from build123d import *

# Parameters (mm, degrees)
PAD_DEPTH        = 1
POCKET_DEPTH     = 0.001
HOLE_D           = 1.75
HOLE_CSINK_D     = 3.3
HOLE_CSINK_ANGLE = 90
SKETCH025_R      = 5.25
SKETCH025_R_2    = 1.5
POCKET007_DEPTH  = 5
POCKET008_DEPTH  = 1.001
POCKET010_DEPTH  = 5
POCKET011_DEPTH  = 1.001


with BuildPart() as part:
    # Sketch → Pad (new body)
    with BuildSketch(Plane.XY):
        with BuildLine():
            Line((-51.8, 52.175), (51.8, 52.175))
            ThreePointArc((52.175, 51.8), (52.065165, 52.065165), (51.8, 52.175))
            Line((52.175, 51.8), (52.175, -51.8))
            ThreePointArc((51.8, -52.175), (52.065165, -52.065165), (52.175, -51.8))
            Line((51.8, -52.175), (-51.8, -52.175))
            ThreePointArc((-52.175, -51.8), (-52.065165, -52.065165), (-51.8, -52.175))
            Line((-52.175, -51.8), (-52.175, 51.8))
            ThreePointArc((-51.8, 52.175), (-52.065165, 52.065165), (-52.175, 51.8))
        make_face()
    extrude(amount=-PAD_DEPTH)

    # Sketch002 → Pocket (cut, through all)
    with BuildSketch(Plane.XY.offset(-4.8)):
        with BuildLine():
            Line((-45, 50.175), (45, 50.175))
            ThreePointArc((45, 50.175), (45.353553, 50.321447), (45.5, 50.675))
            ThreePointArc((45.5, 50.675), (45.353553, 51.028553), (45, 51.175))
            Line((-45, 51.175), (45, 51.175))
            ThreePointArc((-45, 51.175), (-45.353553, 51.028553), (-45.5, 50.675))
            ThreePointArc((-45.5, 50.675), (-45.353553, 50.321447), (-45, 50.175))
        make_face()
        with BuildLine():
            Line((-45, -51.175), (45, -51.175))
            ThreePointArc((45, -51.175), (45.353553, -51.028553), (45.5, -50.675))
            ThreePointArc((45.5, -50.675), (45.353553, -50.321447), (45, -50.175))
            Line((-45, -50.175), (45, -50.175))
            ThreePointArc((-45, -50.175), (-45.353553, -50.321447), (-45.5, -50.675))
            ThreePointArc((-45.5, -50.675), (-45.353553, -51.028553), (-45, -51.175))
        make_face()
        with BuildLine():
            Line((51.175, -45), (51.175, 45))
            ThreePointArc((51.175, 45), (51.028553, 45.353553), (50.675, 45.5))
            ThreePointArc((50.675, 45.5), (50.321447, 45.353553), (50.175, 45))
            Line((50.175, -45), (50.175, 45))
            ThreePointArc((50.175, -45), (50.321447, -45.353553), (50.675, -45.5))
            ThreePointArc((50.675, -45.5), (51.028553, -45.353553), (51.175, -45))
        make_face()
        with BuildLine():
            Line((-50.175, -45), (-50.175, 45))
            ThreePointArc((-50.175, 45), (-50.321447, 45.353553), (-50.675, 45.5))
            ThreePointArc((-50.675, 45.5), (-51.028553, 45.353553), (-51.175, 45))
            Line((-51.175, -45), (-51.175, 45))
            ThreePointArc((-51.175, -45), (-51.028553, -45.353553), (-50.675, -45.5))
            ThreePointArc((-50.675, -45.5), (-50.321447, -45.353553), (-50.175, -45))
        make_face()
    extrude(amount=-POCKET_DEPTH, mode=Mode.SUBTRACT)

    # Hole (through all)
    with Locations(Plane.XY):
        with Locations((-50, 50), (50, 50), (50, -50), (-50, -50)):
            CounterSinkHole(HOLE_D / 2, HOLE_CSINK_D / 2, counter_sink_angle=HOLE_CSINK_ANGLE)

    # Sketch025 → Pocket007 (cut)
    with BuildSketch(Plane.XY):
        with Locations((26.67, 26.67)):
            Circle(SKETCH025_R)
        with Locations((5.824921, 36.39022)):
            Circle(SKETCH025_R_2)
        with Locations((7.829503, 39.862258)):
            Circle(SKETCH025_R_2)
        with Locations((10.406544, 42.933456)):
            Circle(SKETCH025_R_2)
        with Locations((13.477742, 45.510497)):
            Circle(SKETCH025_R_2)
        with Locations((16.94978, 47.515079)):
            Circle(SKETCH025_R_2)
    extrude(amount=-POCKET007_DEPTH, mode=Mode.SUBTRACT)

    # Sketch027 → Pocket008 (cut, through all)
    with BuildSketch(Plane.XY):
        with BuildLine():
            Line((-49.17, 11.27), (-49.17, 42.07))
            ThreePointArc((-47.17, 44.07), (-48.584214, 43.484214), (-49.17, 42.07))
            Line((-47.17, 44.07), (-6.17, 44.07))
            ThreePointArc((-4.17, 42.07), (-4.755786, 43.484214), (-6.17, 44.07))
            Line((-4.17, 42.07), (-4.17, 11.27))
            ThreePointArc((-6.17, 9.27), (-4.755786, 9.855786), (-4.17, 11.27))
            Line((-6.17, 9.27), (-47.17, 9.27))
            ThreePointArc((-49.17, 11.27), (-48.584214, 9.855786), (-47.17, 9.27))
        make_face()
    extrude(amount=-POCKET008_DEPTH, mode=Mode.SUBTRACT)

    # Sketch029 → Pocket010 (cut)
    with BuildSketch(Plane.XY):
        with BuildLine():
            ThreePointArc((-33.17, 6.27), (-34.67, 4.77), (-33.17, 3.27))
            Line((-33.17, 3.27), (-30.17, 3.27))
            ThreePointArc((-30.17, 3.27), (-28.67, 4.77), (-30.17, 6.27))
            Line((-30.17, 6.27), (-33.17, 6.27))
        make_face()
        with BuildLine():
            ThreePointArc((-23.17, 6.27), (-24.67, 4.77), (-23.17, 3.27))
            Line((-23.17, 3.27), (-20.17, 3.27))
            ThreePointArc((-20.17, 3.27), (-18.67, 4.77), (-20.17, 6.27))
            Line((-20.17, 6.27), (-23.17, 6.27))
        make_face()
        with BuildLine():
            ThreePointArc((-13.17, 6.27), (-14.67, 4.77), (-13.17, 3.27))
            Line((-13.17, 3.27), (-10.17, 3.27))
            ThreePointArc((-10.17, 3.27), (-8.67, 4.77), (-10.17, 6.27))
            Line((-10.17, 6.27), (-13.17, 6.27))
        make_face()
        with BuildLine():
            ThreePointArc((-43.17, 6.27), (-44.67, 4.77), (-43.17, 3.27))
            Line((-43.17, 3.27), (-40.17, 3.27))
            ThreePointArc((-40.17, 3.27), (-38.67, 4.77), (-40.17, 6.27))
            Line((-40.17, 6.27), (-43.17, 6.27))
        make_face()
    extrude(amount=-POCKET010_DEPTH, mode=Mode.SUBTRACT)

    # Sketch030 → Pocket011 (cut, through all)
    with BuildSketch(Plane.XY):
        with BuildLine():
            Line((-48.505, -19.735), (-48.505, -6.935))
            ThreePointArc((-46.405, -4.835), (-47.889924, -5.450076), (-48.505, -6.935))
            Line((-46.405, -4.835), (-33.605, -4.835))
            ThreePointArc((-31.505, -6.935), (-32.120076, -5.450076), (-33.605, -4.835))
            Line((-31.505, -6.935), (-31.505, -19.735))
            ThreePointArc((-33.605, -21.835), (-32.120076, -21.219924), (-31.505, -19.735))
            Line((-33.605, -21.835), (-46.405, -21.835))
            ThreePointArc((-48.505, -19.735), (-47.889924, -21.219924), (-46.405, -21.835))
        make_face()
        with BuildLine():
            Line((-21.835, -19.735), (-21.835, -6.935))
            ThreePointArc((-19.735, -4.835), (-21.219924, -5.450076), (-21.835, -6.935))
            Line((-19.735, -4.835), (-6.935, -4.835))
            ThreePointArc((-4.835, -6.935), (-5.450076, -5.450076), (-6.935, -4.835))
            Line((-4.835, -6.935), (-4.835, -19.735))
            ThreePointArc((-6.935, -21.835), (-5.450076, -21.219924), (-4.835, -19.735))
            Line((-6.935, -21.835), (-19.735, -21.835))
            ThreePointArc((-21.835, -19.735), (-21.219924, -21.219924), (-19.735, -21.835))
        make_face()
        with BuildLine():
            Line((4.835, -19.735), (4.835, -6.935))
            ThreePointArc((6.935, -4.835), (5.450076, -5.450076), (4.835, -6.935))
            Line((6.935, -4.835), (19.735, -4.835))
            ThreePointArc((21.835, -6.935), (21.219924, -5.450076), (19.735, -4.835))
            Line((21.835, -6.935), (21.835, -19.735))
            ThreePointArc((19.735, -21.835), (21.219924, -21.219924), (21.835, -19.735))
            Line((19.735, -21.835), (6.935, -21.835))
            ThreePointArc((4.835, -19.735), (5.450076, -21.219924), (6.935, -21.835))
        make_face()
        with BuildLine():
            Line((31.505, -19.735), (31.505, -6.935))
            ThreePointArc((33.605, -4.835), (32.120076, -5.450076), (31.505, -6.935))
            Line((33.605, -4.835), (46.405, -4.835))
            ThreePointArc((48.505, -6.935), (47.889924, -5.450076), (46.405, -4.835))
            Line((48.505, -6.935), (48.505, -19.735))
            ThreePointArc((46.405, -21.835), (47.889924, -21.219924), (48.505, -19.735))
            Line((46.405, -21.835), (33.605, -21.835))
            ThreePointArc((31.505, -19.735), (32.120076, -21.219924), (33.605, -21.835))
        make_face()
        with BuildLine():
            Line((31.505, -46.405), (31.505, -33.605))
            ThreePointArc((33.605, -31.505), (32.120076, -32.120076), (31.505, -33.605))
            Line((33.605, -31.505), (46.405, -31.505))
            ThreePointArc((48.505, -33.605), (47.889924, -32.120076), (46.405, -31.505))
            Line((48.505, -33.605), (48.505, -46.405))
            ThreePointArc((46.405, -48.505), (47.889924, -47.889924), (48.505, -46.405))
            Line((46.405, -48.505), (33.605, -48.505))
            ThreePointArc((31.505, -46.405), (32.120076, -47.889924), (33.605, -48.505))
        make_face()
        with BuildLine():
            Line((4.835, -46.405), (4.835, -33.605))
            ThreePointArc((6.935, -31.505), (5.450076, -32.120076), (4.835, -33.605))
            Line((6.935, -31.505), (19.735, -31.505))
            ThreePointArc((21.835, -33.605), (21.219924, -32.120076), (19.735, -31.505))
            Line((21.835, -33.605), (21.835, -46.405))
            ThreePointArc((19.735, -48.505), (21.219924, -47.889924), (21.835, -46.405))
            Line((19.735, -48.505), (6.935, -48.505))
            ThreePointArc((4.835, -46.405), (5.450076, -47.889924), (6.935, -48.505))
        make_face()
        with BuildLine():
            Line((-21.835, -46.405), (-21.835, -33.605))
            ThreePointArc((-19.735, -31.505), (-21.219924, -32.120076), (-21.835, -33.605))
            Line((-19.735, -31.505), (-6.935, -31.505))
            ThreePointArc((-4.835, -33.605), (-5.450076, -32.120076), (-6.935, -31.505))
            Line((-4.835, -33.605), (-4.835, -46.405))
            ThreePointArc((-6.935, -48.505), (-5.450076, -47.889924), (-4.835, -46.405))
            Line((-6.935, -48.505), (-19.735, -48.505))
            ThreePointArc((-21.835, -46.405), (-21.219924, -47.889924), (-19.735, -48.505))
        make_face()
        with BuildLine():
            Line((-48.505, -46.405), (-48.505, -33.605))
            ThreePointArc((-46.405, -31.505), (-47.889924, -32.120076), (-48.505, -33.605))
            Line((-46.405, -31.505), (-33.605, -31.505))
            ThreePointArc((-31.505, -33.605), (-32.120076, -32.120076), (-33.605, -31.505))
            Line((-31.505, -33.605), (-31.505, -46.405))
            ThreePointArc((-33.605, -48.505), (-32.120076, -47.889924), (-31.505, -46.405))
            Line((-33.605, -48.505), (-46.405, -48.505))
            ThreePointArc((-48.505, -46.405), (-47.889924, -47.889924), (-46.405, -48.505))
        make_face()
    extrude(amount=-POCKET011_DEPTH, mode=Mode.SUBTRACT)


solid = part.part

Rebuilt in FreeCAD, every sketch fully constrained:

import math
import FreeCAD as App
import Part
import Sketcher

doc = App.newDocument("Part")
body = doc.addObject("PartDesign::Body", "Body")

sketch1 = body.newObject("Sketcher::SketchObject", "Sketch")
sketch1.AttachmentSupport = (doc.getObject("XY_Plane"), [""])
sketch1.MapMode = "FlatFace"
sketch1.addGeometry(Part.LineSegment(App.Vector(51.8, 52.17, 0), App.Vector(-51.8, 52.17, 0)), False)
sketch1.addGeometry(Part.ArcOfCircle(Part.Circle(App.Vector(-51.8, 51.8, 0), App.Vector(0, 0, 1), 0.38), math.radians(90), math.radians(180)), False)
sketch1.addGeometry(Part.LineSegment(App.Vector(-52.17, 51.8, 0), App.Vector(-52.17, -51.8, 0)), False)
sketch1.addGeometry(Part.ArcOfCircle(Part.Circle(App.Vector(-51.8, -51.8, 0), App.Vector(0, 0, 1), 0.38), math.radians(-180), math.radians(-90)), False)
sketch1.addGeometry(Part.LineSegment(App.Vector(-51.8, -52.17, 0), App.Vector(51.8, -52.17, 0)), False)
sketch1.addGeometry(Part.ArcOfCircle(Part.Circle(App.Vector(51.8, -51.8, 0), App.Vector(0, 0, 1), 0.38), math.radians(-90), math.radians(0)), False)
sketch1.addGeometry(Part.LineSegment(App.Vector(52.17, -51.8, 0), App.Vector(52.17, 51.8, 0)), False)
sketch1.addGeometry(Part.ArcOfCircle(Part.Circle(App.Vector(51.8, 51.8, 0), App.Vector(0, 0, 1), 0.38), math.radians(0), math.radians(90)), False)
sketch1.addConstraint(Sketcher.Constraint("Tangent", 0, 2, 1, 1))
sketch1.addConstraint(Sketcher.Constraint("Tangent", 1, 2, 2, 1))
sketch1.addConstraint(Sketcher.Constraint("Tangent", 2, 2, 3, 1))
sketch1.addConstraint(Sketcher.Constraint("Tangent", 3, 2, 4, 1))
sketch1.addConstraint(Sketcher.Constraint("Tangent", 4, 2, 5, 1))
sketch1.addConstraint(Sketcher.Constraint("Tangent", 5, 2, 6, 1))
sketch1.addConstraint(Sketcher.Constraint("Tangent", 6, 2, 7, 1))
sketch1.addConstraint(Sketcher.Constraint("Tangent", 7, 2, 0, 1))
sketch1.addConstraint(Sketcher.Constraint("Horizontal", 0))
sketch1.addConstraint(Sketcher.Constraint("Vertical", 2))
sketch1.addConstraint(Sketcher.Constraint("Horizontal", 4))
sketch1.addConstraint(Sketcher.Constraint("Vertical", 6))
sketch1.addConstraint(Sketcher.Constraint("Equal", 1, 3))
sketch1.addConstraint(Sketcher.Constraint("Equal", 3, 5))
sketch1.addConstraint(Sketcher.Constraint("Equal", 5, 7))
sketch1.addConstraint(Sketcher.Constraint("Symmetric", 1, 3, 5, 3, -1, 1))
sketch1.addConstraint(Sketcher.Constraint("Equal", 4, 2))
sketch1.addConstraint(Sketcher.Constraint("DistanceX", 0, 2, 0, 1, 103.6))
sketch1.addConstraint(Sketcher.Constraint("Radius", 1, 0.375))
pad1 = body.newObject("PartDesign::Pad", "Pad")
pad1.Profile = sketch1
pad1.Length = 1
pad1.Reversed = True

sketch2 = body.newObject("Sketcher::SketchObject", "Sketch001")
sketch2.AttachmentSupport = (doc.getObject("XY_Plane"), [""])
sketch2.MapMode = "FlatFace"
sketch2.AttachmentOffset = App.Placement(App.Vector(0, 0, -4.8), App.Rotation())
sketch2.addGeometry(Part.LineSegment(App.Vector(-45, 50.2, 0), App.Vector(45, 50.2, 0)), False)
sketch2.addGeometry(Part.ArcOfCircle(Part.Circle(App.Vector(45, 50.7, 0), App.Vector(0, 0, 1), 0.5), math.radians(-90), math.radians(0)), False)
sketch2.addGeometry(Part.ArcOfCircle(Part.Circle(App.Vector(45, 50.7, 0), App.Vector(0, 0, 1), 0.5), math.radians(0), math.radians(90)), False)
sketch2.addGeometry(Part.LineSegment(App.Vector(45, 51.2, 0), App.Vector(-45, 51.2, 0)), False)
sketch2.addGeometry(Part.ArcOfCircle(Part.Circle(App.Vector(-45, 50.7, 0), App.Vector(0, 0, 1), 0.5), math.radians(90), math.radians(180)), False)
sketch2.addGeometry(Part.ArcOfCircle(Part.Circle(App.Vector(-45, 50.7, 0), App.Vector(0, 0, 1), 0.5), math.radians(-180), math.radians(-90)), False)
sketch2.addGeometry(Part.LineSegment(App.Vector(-45, -51.2, 0), App.Vector(45, -51.2, 0)), False)
sketch2.addGeometry(Part.ArcOfCircle(Part.Circle(App.Vector(45, -50.7, 0), App.Vector(0, 0, 1), 0.5), math.radians(-90), math.radians(0)), False)
sketch2.addGeometry(Part.ArcOfCircle(Part.Circle(App.Vector(45, -50.7, 0), App.Vector(0, 0, 1), 0.5), math.radians(0), math.radians(90)), False)
sketch2.addGeometry(Part.LineSegment(App.Vector(45, -50.2, 0), App.Vector(-45, -50.2, 0)), False)
sketch2.addGeometry(Part.ArcOfCircle(Part.Circle(App.Vector(-45, -50.7, 0), App.Vector(0, 0, 1), 0.5), math.radians(90), math.radians(180)), False)
sketch2.addGeometry(Part.ArcOfCircle(Part.Circle(App.Vector(-45, -50.7, 0), App.Vector(0, 0, 1), 0.5), math.radians(-180), math.radians(-90)), False)
sketch2.addGeometry(Part.LineSegment(App.Vector(51.2, -45, 0), App.Vector(51.2, 45, 0)), False)
sketch2.addGeometry(Part.ArcOfCircle(Part.Circle(App.Vector(50.7, 45, 0), App.Vector(0, 0, 1), 0.5), math.radians(0), math.radians(90)), False)
sketch2.addGeometry(Part.ArcOfCircle(Part.Circle(App.Vector(50.7, 45, 0), App.Vector(0, 0, 1), 0.5), math.radians(90), math.radians(180)), False)
sketch2.addGeometry(Part.LineSegment(App.Vector(50.2, 45, 0), App.Vector(50.2, -45, 0)), False)
sketch2.addGeometry(Part.ArcOfCircle(Part.Circle(App.Vector(50.7, -45, 0), App.Vector(0, 0, 1), 0.5), math.radians(-180), math.radians(-90)), False)
sketch2.addGeometry(Part.ArcOfCircle(Part.Circle(App.Vector(50.7, -45, 0), App.Vector(0, 0, 1), 0.5), math.radians(-90), math.radians(0)), False)
sketch2.addGeometry(Part.LineSegment(App.Vector(-50.2, -45, 0), App.Vector(-50.2, 45, 0)), False)
sketch2.addGeometry(Part.ArcOfCircle(Part.Circle(App.Vector(-50.7, 45, 0), App.Vector(0, 0, 1), 0.5), math.radians(0), math.radians(90)), False)
sketch2.addGeometry(Part.ArcOfCircle(Part.Circle(App.Vector(-50.7, 45, 0), App.Vector(0, 0, 1), 0.5), math.radians(90), math.radians(180)), False)
sketch2.addGeometry(Part.LineSegment(App.Vector(-51.2, 45, 0), App.Vector(-51.2, -45, 0)), False)
sketch2.addGeometry(Part.ArcOfCircle(Part.Circle(App.Vector(-50.7, -45, 0), App.Vector(0, 0, 1), 0.5), math.radians(-180), math.radians(-90)), False)
sketch2.addGeometry(Part.ArcOfCircle(Part.Circle(App.Vector(-50.7, -45, 0), App.Vector(0, 0, 1), 0.5), math.radians(-90), math.radians(0)), False)
sketch2.addConstraint(Sketcher.Constraint("Coincident", 0, 2, 1, 1))
sketch2.addConstraint(Sketcher.Constraint("Coincident", 1, 2, 2, 1))
sketch2.addConstraint(Sketcher.Constraint("Coincident", 2, 2, 3, 1))
sketch2.addConstraint(Sketcher.Constraint("Coincident", 3, 2, 4, 1))
sketch2.addConstraint(Sketcher.Constraint("Coincident", 4, 2, 5, 1))
sketch2.addConstraint(Sketcher.Constraint("Coincident", 5, 2, 0, 1))
sketch2.addConstraint(Sketcher.Constraint("Coincident", 6, 2, 7, 1))
sketch2.addConstraint(Sketcher.Constraint("Coincident", 7, 2, 8, 1))
sketch2.addConstraint(Sketcher.Constraint("Coincident", 8, 2, 9, 1))
sketch2.addConstraint(Sketcher.Constraint("Coincident", 9, 2, 10, 1))
sketch2.addConstraint(Sketcher.Constraint("Coincident", 10, 2, 11, 1))
sketch2.addConstraint(Sketcher.Constraint("Coincident", 11, 2, 6, 1))
sketch2.addConstraint(Sketcher.Constraint("Coincident", 12, 2, 13, 1))
sketch2.addConstraint(Sketcher.Constraint("Coincident", 13, 2, 14, 1))
sketch2.addConstraint(Sketcher.Constraint("Coincident", 14, 2, 15, 1))
sketch2.addConstraint(Sketcher.Constraint("Coincident", 15, 2, 16, 1))
sketch2.addConstraint(Sketcher.Constraint("Coincident", 16, 2, 17, 1))
sketch2.addConstraint(Sketcher.Constraint("Coincident", 17, 2, 12, 1))
sketch2.addConstraint(Sketcher.Constraint("Coincident", 18, 2, 19, 1))
sketch2.addConstraint(Sketcher.Constraint("Coincident", 19, 2, 20, 1))
sketch2.addConstraint(Sketcher.Constraint("Coincident", 20, 2, 21, 1))
sketch2.addConstraint(Sketcher.Constraint("Coincident", 21, 2, 22, 1))
sketch2.addConstraint(Sketcher.Constraint("Coincident", 22, 2, 23, 1))
sketch2.addConstraint(Sketcher.Constraint("Coincident", 23, 2, 18, 1))
sketch2.addConstraint(Sketcher.Constraint("Horizontal", 0))
sketch2.addConstraint(Sketcher.Constraint("Horizontal", 3))
sketch2.addConstraint(Sketcher.Constraint("Horizontal", 6))
sketch2.addConstraint(Sketcher.Constraint("Horizontal", 9))
sketch2.addConstraint(Sketcher.Constraint("Vertical", 12))
sketch2.addConstraint(Sketcher.Constraint("Vertical", 15))
sketch2.addConstraint(Sketcher.Constraint("Vertical", 18))
sketch2.addConstraint(Sketcher.Constraint("Vertical", 21))
sketch2.addConstraint(Sketcher.Constraint("Coincident", 2, 3, 1, 3))
sketch2.addConstraint(Sketcher.Constraint("Coincident", 5, 3, 4, 3))
sketch2.addConstraint(Sketcher.Constraint("Coincident", 8, 3, 7, 3))
sketch2.addConstraint(Sketcher.Constraint("Coincident", 11, 3, 10, 3))
sketch2.addConstraint(Sketcher.Constraint("Coincident", 14, 3, 13, 3))
sketch2.addConstraint(Sketcher.Constraint("Coincident", 17, 3, 16, 3))
sketch2.addConstraint(Sketcher.Constraint("Coincident", 20, 3, 19, 3))
sketch2.addConstraint(Sketcher.Constraint("Coincident", 23, 3, 22, 3))
sketch2.addConstraint(Sketcher.Constraint("Equal", 5, 7))
sketch2.addConstraint(Sketcher.Constraint("Equal", 11, 13))
sketch2.addConstraint(Sketcher.Constraint("Equal", 17, 19))
sketch2.addConstraint(Sketcher.Constraint("Symmetric", 4, 3, 7, 3, -1, 1))
sketch2.addConstraint(Sketcher.Constraint("Symmetric", 16, 3, 19, 3, -1, 1))
sketch2.addConstraint(Sketcher.Constraint("Symmetric", 1, 2, 10, 2, -1, 1))
sketch2.addConstraint(Sketcher.Constraint("Symmetric", 13, 2, 22, 2, -1, 1))
sketch2.addConstraint(Sketcher.Constraint("Symmetric", 1, 2, 4, 2, -2))
sketch2.addConstraint(Sketcher.Constraint("Symmetric", 13, 2, 19, 2, -2))
sketch2.addConstraint(Sketcher.Constraint("Horizontal", 5, 3, 1, 2))
sketch2.addConstraint(Sketcher.Constraint("Horizontal", 11, 3, 7, 2))
sketch2.addConstraint(Sketcher.Constraint("Horizontal", 20, 3, 12, 2))
sketch2.addConstraint(Sketcher.Constraint("Horizontal", 12, 2, 14, 2))
sketch2.addConstraint(Sketcher.Constraint("Horizontal", 23, 3, 15, 2))
sketch2.addConstraint(Sketcher.Constraint("Horizontal", 15, 2, 17, 2))
sketch2.addConstraint(Sketcher.Constraint("Horizontal", 14, 2, 18, 2))
sketch2.addConstraint(Sketcher.Constraint("Horizontal", 18, 2, 20, 2))
sketch2.addConstraint(Sketcher.Constraint("Horizontal", 17, 2, 21, 2))
sketch2.addConstraint(Sketcher.Constraint("Horizontal", 21, 2, 23, 2))
sketch2.addConstraint(Sketcher.Constraint("Vertical", 8, 3, 0, 2))
sketch2.addConstraint(Sketcher.Constraint("Vertical", 0, 2, 2, 2))
sketch2.addConstraint(Sketcher.Constraint("Vertical", 11, 3, 3, 2))
sketch2.addConstraint(Sketcher.Constraint("Vertical", 3, 2, 5, 2))
sketch2.addConstraint(Sketcher.Constraint("Vertical", 2, 2, 6, 2))
sketch2.addConstraint(Sketcher.Constraint("Vertical", 6, 2, 8, 2))
sketch2.addConstraint(Sketcher.Constraint("Vertical", 5, 2, 9, 2))
sketch2.addConstraint(Sketcher.Constraint("Vertical", 9, 2, 11, 2))
sketch2.addConstraint(Sketcher.Constraint("Vertical", 17, 3, 13, 2))
sketch2.addConstraint(Sketcher.Constraint("Vertical", 13, 2, 16, 2))
sketch2.addConstraint(Sketcher.Constraint("Equal", 9, 12))
sketch2.addConstraint(Sketcher.Constraint("Radius", 1, 0.500001))
sketch2.addConstraint(Sketcher.Constraint("DistanceX", 0, 1, 0, 2, 90.0))
sketch2.addConstraint(Sketcher.Constraint("DistanceY", 7, 3, 1, 3, 101.35))
sketch2.addConstraint(Sketcher.Constraint("DistanceX", -1, 1, 13, 3, 50.674999))
pocket1 = body.newObject("PartDesign::Pocket", "Pocket")
pocket1.Profile = sketch2
pocket1.Type = "ThroughAll"

sketch3 = body.newObject("Sketcher::SketchObject", "Sketch002")
sketch3.AttachmentSupport = (doc.getObject("XY_Plane"), [""])
sketch3.MapMode = "FlatFace"
sketch3.addGeometry(Part.Circle(App.Vector(-50, 50, 0), App.Vector(0, 0, 1), 0.9), False)
sketch3.addGeometry(Part.Circle(App.Vector(50, 50, 0), App.Vector(0, 0, 1), 0.9), False)
sketch3.addGeometry(Part.Circle(App.Vector(50, -50, 0), App.Vector(0, 0, 1), 0.9), False)
sketch3.addGeometry(Part.Circle(App.Vector(-50, -50, 0), App.Vector(0, 0, 1), 0.9), False)
sketch3.addConstraint(Sketcher.Constraint("Equal", 0, 1))
sketch3.addConstraint(Sketcher.Constraint("Equal", 1, 2))
sketch3.addConstraint(Sketcher.Constraint("Equal", 2, 3))
sketch3.addConstraint(Sketcher.Constraint("Symmetric", 0, 3, 2, 3, -1, 1))
sketch3.addConstraint(Sketcher.Constraint("Symmetric", 1, 3, 3, 3, -1, 1))
sketch3.addConstraint(Sketcher.Constraint("Symmetric", 0, 3, 1, 3, -2))
sketch3.addConstraint(Sketcher.Constraint("Diameter", 0, 1.75))
sketch3.addConstraint(Sketcher.Constraint("DistanceX", 0, 3, -1, 1, 50.0))
sketch3.addConstraint(Sketcher.Constraint("DistanceY", -1, 1, 0, 3, 50.0))
doc.recompute()
hole = body.newObject("PartDesign::Hole", "Hole")
hole.Profile = sketch3
hole.ThreadType = "None"
hole.Diameter = 1.75
hole.DepthType = "ThroughAll"
hole.HoleCutType = "Countersink"
hole.HoleCutDiameter = 3.3
hole.HoleCutCountersinkAngle = 90

sketch4 = body.newObject("Sketcher::SketchObject", "Sketch003")
sketch4.AttachmentSupport = (doc.getObject("XY_Plane"), [""])
sketch4.MapMode = "FlatFace"
sketch4.addGeometry(Part.Circle(App.Vector(26.7, 26.7, 0), App.Vector(0, 0, 1), 5.2), False)
sketch4.addGeometry(Part.Circle(App.Vector(5.8, 36.4, 0), App.Vector(0, 0, 1), 1.5), False)
sketch4.addGeometry(Part.Circle(App.Vector(7.8, 39.9, 0), App.Vector(0, 0, 1), 1.5), False)
sketch4.addGeometry(Part.Circle(App.Vector(10.4, 42.9, 0), App.Vector(0, 0, 1), 1.5), False)
sketch4.addGeometry(Part.Circle(App.Vector(13.5, 45.5, 0), App.Vector(0, 0, 1), 1.5), False)
sketch4.addGeometry(Part.Circle(App.Vector(16.9, 47.5, 0), App.Vector(0, 0, 1), 1.5), False)
sketch4.addConstraint(Sketcher.Constraint("Equal", 1, 2))
sketch4.addConstraint(Sketcher.Constraint("Equal", 2, 3))
sketch4.addConstraint(Sketcher.Constraint("Equal", 3, 4))
sketch4.addConstraint(Sketcher.Constraint("Equal", 4, 5))
sketch4.addConstraint(Sketcher.Constraint("Diameter", 1, 3.0))
sketch4.addConstraint(Sketcher.Constraint("Diameter", 0, 10.5))
sketch4.addConstraint(Sketcher.Constraint("DistanceX", -1, 1, 0, 3, 26.67))
sketch4.addConstraint(Sketcher.Constraint("DistanceY", -1, 1, 0, 3, 26.67))
sketch4.addConstraint(Sketcher.Constraint("DistanceY", 2, 3, 3, 3, 3.071198))
sketch4.addConstraint(Sketcher.Constraint("DistanceX", -1, 1, 1, 3, 5.824921))
sketch4.addConstraint(Sketcher.Constraint("DistanceY", -1, 1, 1, 3, 36.39022))
sketch4.addConstraint(Sketcher.Constraint("DistanceX", -1, 1, 4, 3, 13.477742))
sketch4.addConstraint(Sketcher.Constraint("DistanceX", -1, 1, 5, 3, 16.94978))
sketch4.addConstraint(Sketcher.Constraint("DistanceY", -1, 1, 5, 3, 47.515079))
sketch4.addConstraint(Sketcher.Constraint("DistanceX", 2, 3, 3, 3, 2.577041))
sketch4.addConstraint(Sketcher.Constraint("DistanceY", 3, 3, 4, 3, 2.577041))
sketch4.addConstraint(Sketcher.Constraint("DistanceX", 2, 3, 4, 3, 5.648239))
sketch4.addConstraint(Sketcher.Constraint("DistanceY", 4, 3, 5, 3, 2.004582))
pocket2 = body.newObject("PartDesign::Pocket", "Pocket001")
pocket2.Profile = sketch4
pocket2.Length = 5

sketch5 = body.newObject("Sketcher::SketchObject", "Sketch004")
sketch5.AttachmentSupport = (doc.getObject("XY_Plane"), [""])
sketch5.MapMode = "FlatFace"
sketch5.addGeometry(Part.LineSegment(App.Vector(-49.2, 42.1, 0), App.Vector(-49.2, 11.3, 0)), False)
sketch5.addGeometry(Part.ArcOfCircle(Part.Circle(App.Vector(-47.2, 11.3, 0), App.Vector(0, 0, 1), 2), math.radians(180), math.radians(270)), False)
sketch5.addGeometry(Part.LineSegment(App.Vector(-47.2, 9.3, 0), App.Vector(-6.2, 9.3, 0)), False)
sketch5.addGeometry(Part.ArcOfCircle(Part.Circle(App.Vector(-6.2, 11.3, 0), App.Vector(0, 0, 1), 2), math.radians(-90), math.radians(0)), False)
sketch5.addGeometry(Part.LineSegment(App.Vector(-4.2, 11.3, 0), App.Vector(-4.2, 42.1, 0)), False)
sketch5.addGeometry(Part.ArcOfCircle(Part.Circle(App.Vector(-6.2, 42.1, 0), App.Vector(0, 0, 1), 2), math.radians(0), math.radians(90)), False)
sketch5.addGeometry(Part.LineSegment(App.Vector(-6.2, 44.1, 0), App.Vector(-47.2, 44.1, 0)), False)
sketch5.addGeometry(Part.ArcOfCircle(Part.Circle(App.Vector(-47.2, 42.1, 0), App.Vector(0, 0, 1), 2), math.radians(90), math.radians(180)), False)
sketch5.addConstraint(Sketcher.Constraint("Tangent", 0, 2, 1, 1))
sketch5.addConstraint(Sketcher.Constraint("Tangent", 1, 2, 2, 1))
sketch5.addConstraint(Sketcher.Constraint("Tangent", 2, 2, 3, 1))
sketch5.addConstraint(Sketcher.Constraint("Tangent", 3, 2, 4, 1))
sketch5.addConstraint(Sketcher.Constraint("Tangent", 4, 2, 5, 1))
sketch5.addConstraint(Sketcher.Constraint("Tangent", 5, 2, 6, 1))
sketch5.addConstraint(Sketcher.Constraint("Tangent", 6, 2, 7, 1))
sketch5.addConstraint(Sketcher.Constraint("Tangent", 7, 2, 0, 1))
sketch5.addConstraint(Sketcher.Constraint("Vertical", 0))
sketch5.addConstraint(Sketcher.Constraint("Horizontal", 2))
sketch5.addConstraint(Sketcher.Constraint("Vertical", 4))
sketch5.addConstraint(Sketcher.Constraint("Horizontal", 6))
sketch5.addConstraint(Sketcher.Constraint("Equal", 1, 3))
sketch5.addConstraint(Sketcher.Constraint("Equal", 3, 5))
sketch5.addConstraint(Sketcher.Constraint("Equal", 5, 7))
sketch5.addConstraint(Sketcher.Constraint("Radius", 1, 1.999999))
sketch5.addConstraint(Sketcher.Constraint("DistanceX", 2, 1, 2, 2, 41.0))
sketch5.addConstraint(Sketcher.Constraint("DistanceY", 0, 2, 0, 1, 30.8))
sketch5.addConstraint(Sketcher.Constraint("DistanceX", 1, 3, -1, 1, 47.170001))
sketch5.addConstraint(Sketcher.Constraint("DistanceY", -1, 1, 1, 3, 11.269999))
pocket3 = body.newObject("PartDesign::Pocket", "Pocket002")
pocket3.Profile = sketch5
pocket3.Type = "ThroughAll"

sketch6 = body.newObject("Sketcher::SketchObject", "Sketch005")
sketch6.AttachmentSupport = (doc.getObject("XY_Plane"), [""])
sketch6.MapMode = "FlatFace"
sketch6.addGeometry(Part.ArcOfCircle(Part.Circle(App.Vector(-33.2, 4.8, 0), App.Vector(0, 0, 1), 1.5), math.radians(90), math.radians(270)), False)
sketch6.addGeometry(Part.LineSegment(App.Vector(-33.2, 3.3, 0), App.Vector(-30.2, 3.3, 0)), False)
sketch6.addGeometry(Part.ArcOfCircle(Part.Circle(App.Vector(-30.2, 4.8, 0), App.Vector(0, 0, 1), 1.5), math.radians(-90), math.radians(90)), False)
sketch6.addGeometry(Part.LineSegment(App.Vector(-30.2, 6.3, 0), App.Vector(-33.2, 6.3, 0)), False)
sketch6.addGeometry(Part.ArcOfCircle(Part.Circle(App.Vector(-23.2, 4.8, 0), App.Vector(0, 0, 1), 1.5), math.radians(90), math.radians(270)), False)
sketch6.addGeometry(Part.LineSegment(App.Vector(-23.2, 3.3, 0), App.Vector(-20.2, 3.3, 0)), False)
sketch6.addGeometry(Part.ArcOfCircle(Part.Circle(App.Vector(-20.2, 4.8, 0), App.Vector(0, 0, 1), 1.5), math.radians(-90), math.radians(90)), False)
sketch6.addGeometry(Part.LineSegment(App.Vector(-20.2, 6.3, 0), App.Vector(-23.2, 6.3, 0)), False)
sketch6.addGeometry(Part.ArcOfCircle(Part.Circle(App.Vector(-13.2, 4.8, 0), App.Vector(0, 0, 1), 1.5), math.radians(90), math.radians(270)), False)
sketch6.addGeometry(Part.LineSegment(App.Vector(-13.2, 3.3, 0), App.Vector(-10.2, 3.3, 0)), False)
sketch6.addGeometry(Part.ArcOfCircle(Part.Circle(App.Vector(-10.2, 4.8, 0), App.Vector(0, 0, 1), 1.5), math.radians(-90), math.radians(90)), False)
sketch6.addGeometry(Part.LineSegment(App.Vector(-10.2, 6.3, 0), App.Vector(-13.2, 6.3, 0)), False)
sketch6.addGeometry(Part.ArcOfCircle(Part.Circle(App.Vector(-43.2, 4.8, 0), App.Vector(0, 0, 1), 1.5), math.radians(90), math.radians(270)), False)
sketch6.addGeometry(Part.LineSegment(App.Vector(-43.2, 3.3, 0), App.Vector(-40.2, 3.3, 0)), False)
sketch6.addGeometry(Part.ArcOfCircle(Part.Circle(App.Vector(-40.2, 4.8, 0), App.Vector(0, 0, 1), 1.5), math.radians(-90), math.radians(90)), False)
sketch6.addGeometry(Part.LineSegment(App.Vector(-40.2, 6.3, 0), App.Vector(-43.2, 6.3, 0)), False)
sketch6.addConstraint(Sketcher.Constraint("Tangent", 0, 2, 1, 1))
sketch6.addConstraint(Sketcher.Constraint("Tangent", 1, 2, 2, 1))
sketch6.addConstraint(Sketcher.Constraint("Tangent", 2, 2, 3, 1))
sketch6.addConstraint(Sketcher.Constraint("Tangent", 3, 2, 0, 1))
sketch6.addConstraint(Sketcher.Constraint("Tangent", 4, 2, 5, 1))
sketch6.addConstraint(Sketcher.Constraint("Tangent", 5, 2, 6, 1))
sketch6.addConstraint(Sketcher.Constraint("Tangent", 6, 2, 7, 1))
sketch6.addConstraint(Sketcher.Constraint("Tangent", 7, 2, 4, 1))
sketch6.addConstraint(Sketcher.Constraint("Tangent", 8, 2, 9, 1))
sketch6.addConstraint(Sketcher.Constraint("Tangent", 9, 2, 10, 1))
sketch6.addConstraint(Sketcher.Constraint("Tangent", 10, 2, 11, 1))
sketch6.addConstraint(Sketcher.Constraint("Tangent", 11, 2, 8, 1))
sketch6.addConstraint(Sketcher.Constraint("Tangent", 12, 2, 13, 1))
sketch6.addConstraint(Sketcher.Constraint("Tangent", 13, 2, 14, 1))
sketch6.addConstraint(Sketcher.Constraint("Tangent", 14, 2, 15, 1))
sketch6.addConstraint(Sketcher.Constraint("Tangent", 15, 2, 12, 1))
sketch6.addConstraint(Sketcher.Constraint("Horizontal", 1))
sketch6.addConstraint(Sketcher.Constraint("Horizontal", 3))
sketch6.addConstraint(Sketcher.Constraint("Horizontal", 5))
sketch6.addConstraint(Sketcher.Constraint("Horizontal", 7))
sketch6.addConstraint(Sketcher.Constraint("Horizontal", 9))
sketch6.addConstraint(Sketcher.Constraint("Horizontal", 11))
sketch6.addConstraint(Sketcher.Constraint("Horizontal", 13))
sketch6.addConstraint(Sketcher.Constraint("Horizontal", 15))
sketch6.addConstraint(Sketcher.Constraint("Equal", 2, 4))
sketch6.addConstraint(Sketcher.Constraint("Equal", 6, 8))
sketch6.addConstraint(Sketcher.Constraint("Equal", 10, 12))
sketch6.addConstraint(Sketcher.Constraint("Horizontal", 2, 3, 4, 3))
sketch6.addConstraint(Sketcher.Constraint("Horizontal", 6, 3, 8, 3))
sketch6.addConstraint(Sketcher.Constraint("Horizontal", 10, 3, 12, 3))
sketch6.addConstraint(Sketcher.Constraint("Equal", 3, 5))
sketch6.addConstraint(Sketcher.Constraint("Equal", 7, 9))
sketch6.addConstraint(Sketcher.Constraint("Equal", 11, 13))
sketch6.addConstraint(Sketcher.Constraint("Radius", 0, 1.5))
sketch6.addConstraint(Sketcher.Constraint("DistanceX", 1, 1, 1, 2, 3.0))
sketch6.addConstraint(Sketcher.Constraint("DistanceX", 2, 3, 4, 3, 7.0))
sketch6.addConstraint(Sketcher.Constraint("DistanceX", 6, 3, 8, 3, 7.0))
sketch6.addConstraint(Sketcher.Constraint("DistanceX", 12, 3, 0, 3, 10.0))
sketch6.addConstraint(Sketcher.Constraint("DistanceX", 0, 3, -1, 1, 33.17))
sketch6.addConstraint(Sketcher.Constraint("DistanceY", -1, 1, 0, 3, 4.77))
pocket4 = body.newObject("PartDesign::Pocket", "Pocket003")
pocket4.Profile = sketch6
pocket4.Length = 5

sketch7 = body.newObject("Sketcher::SketchObject", "Sketch006")
sketch7.AttachmentSupport = (doc.getObject("XY_Plane"), [""])
sketch7.MapMode = "FlatFace"
sketch7.addGeometry(Part.LineSegment(App.Vector(-48.5, -6.9, 0), App.Vector(-48.5, -19.7, 0)), False)
sketch7.addGeometry(Part.ArcOfCircle(Part.Circle(App.Vector(-46.4, -19.7, 0), App.Vector(0, 0, 1), 2.1), math.radians(-180), math.radians(-90)), False)
sketch7.addGeometry(Part.LineSegment(App.Vector(-46.4, -21.8, 0), App.Vector(-33.6, -21.8, 0)), False)
sketch7.addGeometry(Part.ArcOfCircle(Part.Circle(App.Vector(-33.6, -19.7, 0), App.Vector(0, 0, 1), 2.1), math.radians(-90), math.radians(0)), False)
sketch7.addGeometry(Part.LineSegment(App.Vector(-31.5, -19.7, 0), App.Vector(-31.5, -6.9, 0)), False)
sketch7.addGeometry(Part.ArcOfCircle(Part.Circle(App.Vector(-33.6, -6.9, 0), App.Vector(0, 0, 1), 2.1), math.radians(0), math.radians(90)), False)
sketch7.addGeometry(Part.LineSegment(App.Vector(-33.6, -4.8, 0), App.Vector(-46.4, -4.8, 0)), False)
sketch7.addGeometry(Part.ArcOfCircle(Part.Circle(App.Vector(-46.4, -6.9, 0), App.Vector(0, 0, 1), 2.1), math.radians(90), math.radians(180)), False)
sketch7.addGeometry(Part.LineSegment(App.Vector(-21.8, -6.9, 0), App.Vector(-21.8, -19.7, 0)), False)
sketch7.addGeometry(Part.ArcOfCircle(Part.Circle(App.Vector(-19.7, -19.7, 0), App.Vector(0, 0, 1), 2.1), math.radians(-180), math.radians(-90)), False)
sketch7.addGeometry(Part.LineSegment(App.Vector(-19.7, -21.8, 0), App.Vector(-6.9, -21.8, 0)), False)
sketch7.addGeometry(Part.ArcOfCircle(Part.Circle(App.Vector(-6.9, -19.7, 0), App.Vector(0, 0, 1), 2.1), math.radians(-90), math.radians(0)), False)
sketch7.addGeometry(Part.LineSegment(App.Vector(-4.8, -19.7, 0), App.Vector(-4.8, -6.9, 0)), False)
sketch7.addGeometry(Part.ArcOfCircle(Part.Circle(App.Vector(-6.9, -6.9, 0), App.Vector(0, 0, 1), 2.1), math.radians(0), math.radians(90)), False)
sketch7.addGeometry(Part.LineSegment(App.Vector(-6.9, -4.8, 0), App.Vector(-19.7, -4.8, 0)), False)
sketch7.addGeometry(Part.ArcOfCircle(Part.Circle(App.Vector(-19.7, -6.9, 0), App.Vector(0, 0, 1), 2.1), math.radians(90), math.radians(180)), False)
sketch7.addGeometry(Part.LineSegment(App.Vector(4.8, -6.9, 0), App.Vector(4.8, -19.7, 0)), False)
sketch7.addGeometry(Part.ArcOfCircle(Part.Circle(App.Vector(6.9, -19.7, 0), App.Vector(0, 0, 1), 2.1), math.radians(-180), math.radians(-90)), False)
sketch7.addGeometry(Part.LineSegment(App.Vector(6.9, -21.8, 0), App.Vector(19.7, -21.8, 0)), False)
sketch7.addGeometry(Part.ArcOfCircle(Part.Circle(App.Vector(19.7, -19.7, 0), App.Vector(0, 0, 1), 2.1), math.radians(-90), math.radians(0)), False)
sketch7.addGeometry(Part.LineSegment(App.Vector(21.8, -19.7, 0), App.Vector(21.8, -6.9, 0)), False)
sketch7.addGeometry(Part.ArcOfCircle(Part.Circle(App.Vector(19.7, -6.9, 0), App.Vector(0, 0, 1), 2.1), math.radians(0), math.radians(90)), False)
sketch7.addGeometry(Part.LineSegment(App.Vector(19.7, -4.8, 0), App.Vector(6.9, -4.8, 0)), False)
sketch7.addGeometry(Part.ArcOfCircle(Part.Circle(App.Vector(6.9, -6.9, 0), App.Vector(0, 0, 1), 2.1), math.radians(90), math.radians(180)), False)
sketch7.addGeometry(Part.LineSegment(App.Vector(31.5, -6.9, 0), App.Vector(31.5, -19.7, 0)), False)
sketch7.addGeometry(Part.ArcOfCircle(Part.Circle(App.Vector(33.6, -19.7, 0), App.Vector(0, 0, 1), 2.1), math.radians(-180), math.radians(-90)), False)
sketch7.addGeometry(Part.LineSegment(App.Vector(33.6, -21.8, 0), App.Vector(46.4, -21.8, 0)), False)
sketch7.addGeometry(Part.ArcOfCircle(Part.Circle(App.Vector(46.4, -19.7, 0), App.Vector(0, 0, 1), 2.1), math.radians(-90), math.radians(0)), False)
sketch7.addGeometry(Part.LineSegment(App.Vector(48.5, -19.7, 0), App.Vector(48.5, -6.9, 0)), False)
sketch7.addGeometry(Part.ArcOfCircle(Part.Circle(App.Vector(46.4, -6.9, 0), App.Vector(0, 0, 1), 2.1), math.radians(0), math.radians(90)), False)
sketch7.addGeometry(Part.LineSegment(App.Vector(46.4, -4.8, 0), App.Vector(33.6, -4.8, 0)), False)
sketch7.addGeometry(Part.ArcOfCircle(Part.Circle(App.Vector(33.6, -6.9, 0), App.Vector(0, 0, 1), 2.1), math.radians(90), math.radians(180)), False)
sketch7.addGeometry(Part.LineSegment(App.Vector(31.5, -33.6, 0), App.Vector(31.5, -46.4, 0)), False)
sketch7.addGeometry(Part.ArcOfCircle(Part.Circle(App.Vector(33.6, -46.4, 0), App.Vector(0, 0, 1), 2.1), math.radians(-180), math.radians(-90)), False)
sketch7.addGeometry(Part.LineSegment(App.Vector(33.6, -48.5, 0), App.Vector(46.4, -48.5, 0)), False)
sketch7.addGeometry(Part.ArcOfCircle(Part.Circle(App.Vector(46.4, -46.4, 0), App.Vector(0, 0, 1), 2.1), math.radians(-90), math.radians(0)), False)
sketch7.addGeometry(Part.LineSegment(App.Vector(48.5, -46.4, 0), App.Vector(48.5, -33.6, 0)), False)
sketch7.addGeometry(Part.ArcOfCircle(Part.Circle(App.Vector(46.4, -33.6, 0), App.Vector(0, 0, 1), 2.1), math.radians(0), math.radians(90)), False)
sketch7.addGeometry(Part.LineSegment(App.Vector(46.4, -31.5, 0), App.Vector(33.6, -31.5, 0)), False)
sketch7.addGeometry(Part.ArcOfCircle(Part.Circle(App.Vector(33.6, -33.6, 0), App.Vector(0, 0, 1), 2.1), math.radians(90), math.radians(180)), False)
sketch7.addGeometry(Part.LineSegment(App.Vector(4.8, -33.6, 0), App.Vector(4.8, -46.4, 0)), False)
sketch7.addGeometry(Part.ArcOfCircle(Part.Circle(App.Vector(6.9, -46.4, 0), App.Vector(0, 0, 1), 2.1), math.radians(-180), math.radians(-90)), False)
sketch7.addGeometry(Part.LineSegment(App.Vector(6.9, -48.5, 0), App.Vector(19.7, -48.5, 0)), False)
sketch7.addGeometry(Part.ArcOfCircle(Part.Circle(App.Vector(19.7, -46.4, 0), App.Vector(0, 0, 1), 2.1), math.radians(-90), math.radians(0)), False)
sketch7.addGeometry(Part.LineSegment(App.Vector(21.8, -46.4, 0), App.Vector(21.8, -33.6, 0)), False)
sketch7.addGeometry(Part.ArcOfCircle(Part.Circle(App.Vector(19.7, -33.6, 0), App.Vector(0, 0, 1), 2.1), math.radians(0), math.radians(90)), False)
sketch7.addGeometry(Part.LineSegment(App.Vector(19.7, -31.5, 0), App.Vector(6.9, -31.5, 0)), False)
sketch7.addGeometry(Part.ArcOfCircle(Part.Circle(App.Vector(6.9, -33.6, 0), App.Vector(0, 0, 1), 2.1), math.radians(90), math.radians(180)), False)
sketch7.addGeometry(Part.LineSegment(App.Vector(-21.8, -33.6, 0), App.Vector(-21.8, -46.4, 0)), False)
sketch7.addGeometry(Part.ArcOfCircle(Part.Circle(App.Vector(-19.7, -46.4, 0), App.Vector(0, 0, 1), 2.1), math.radians(-180), math.radians(-90)), False)
sketch7.addGeometry(Part.LineSegment(App.Vector(-19.7, -48.5, 0), App.Vector(-6.9, -48.5, 0)), False)
sketch7.addGeometry(Part.ArcOfCircle(Part.Circle(App.Vector(-6.9, -46.4, 0), App.Vector(0, 0, 1), 2.1), math.radians(-90), math.radians(0)), False)
sketch7.addGeometry(Part.LineSegment(App.Vector(-4.8, -46.4, 0), App.Vector(-4.8, -33.6, 0)), False)
sketch7.addGeometry(Part.ArcOfCircle(Part.Circle(App.Vector(-6.9, -33.6, 0), App.Vector(0, 0, 1), 2.1), math.radians(0), math.radians(90)), False)
sketch7.addGeometry(Part.LineSegment(App.Vector(-6.9, -31.5, 0), App.Vector(-19.7, -31.5, 0)), False)
sketch7.addGeometry(Part.ArcOfCircle(Part.Circle(App.Vector(-19.7, -33.6, 0), App.Vector(0, 0, 1), 2.1), math.radians(90), math.radians(180)), False)
sketch7.addGeometry(Part.LineSegment(App.Vector(-48.5, -33.6, 0), App.Vector(-48.5, -46.4, 0)), False)
sketch7.addGeometry(Part.ArcOfCircle(Part.Circle(App.Vector(-46.4, -46.4, 0), App.Vector(0, 0, 1), 2.1), math.radians(-180), math.radians(-90)), False)
sketch7.addGeometry(Part.LineSegment(App.Vector(-46.4, -48.5, 0), App.Vector(-33.6, -48.5, 0)), False)
sketch7.addGeometry(Part.ArcOfCircle(Part.Circle(App.Vector(-33.6, -46.4, 0), App.Vector(0, 0, 1), 2.1), math.radians(-90), math.radians(0)), False)
sketch7.addGeometry(Part.LineSegment(App.Vector(-31.5, -46.4, 0), App.Vector(-31.5, -33.6, 0)), False)
sketch7.addGeometry(Part.ArcOfCircle(Part.Circle(App.Vector(-33.6, -33.6, 0), App.Vector(0, 0, 1), 2.1), math.radians(0), math.radians(90)), False)
sketch7.addGeometry(Part.LineSegment(App.Vector(-33.6, -31.5, 0), App.Vector(-46.4, -31.5, 0)), False)
sketch7.addGeometry(Part.ArcOfCircle(Part.Circle(App.Vector(-46.4, -33.6, 0), App.Vector(0, 0, 1), 2.1), math.radians(90), math.radians(180)), False)
sketch7.addConstraint(Sketcher.Constraint("Tangent", 0, 2, 1, 1))
sketch7.addConstraint(Sketcher.Constraint("Tangent", 1, 2, 2, 1))
sketch7.addConstraint(Sketcher.Constraint("Tangent", 2, 2, 3, 1))
sketch7.addConstraint(Sketcher.Constraint("Tangent", 3, 2, 4, 1))
sketch7.addConstraint(Sketcher.Constraint("Tangent", 4, 2, 5, 1))
sketch7.addConstraint(Sketcher.Constraint("Tangent", 5, 2, 6, 1))
sketch7.addConstraint(Sketcher.Constraint("Tangent", 6, 2, 7, 1))
sketch7.addConstraint(Sketcher.Constraint("Tangent", 7, 2, 0, 1))
sketch7.addConstraint(Sketcher.Constraint("Tangent", 8, 2, 9, 1))
sketch7.addConstraint(Sketcher.Constraint("Tangent", 9, 2, 10, 1))
sketch7.addConstraint(Sketcher.Constraint("Tangent", 10, 2, 11, 1))
sketch7.addConstraint(Sketcher.Constraint("Tangent", 11, 2, 12, 1))
sketch7.addConstraint(Sketcher.Constraint("Tangent", 12, 2, 13, 1))
sketch7.addConstraint(Sketcher.Constraint("Tangent", 13, 2, 14, 1))
sketch7.addConstraint(Sketcher.Constraint("Tangent", 14, 2, 15, 1))
sketch7.addConstraint(Sketcher.Constraint("Tangent", 15, 2, 8, 1))
sketch7.addConstraint(Sketcher.Constraint("Tangent", 16, 2, 17, 1))
sketch7.addConstraint(Sketcher.Constraint("Tangent", 17, 2, 18, 1))
sketch7.addConstraint(Sketcher.Constraint("Tangent", 18, 2, 19, 1))
sketch7.addConstraint(Sketcher.Constraint("Tangent", 19, 2, 20, 1))
sketch7.addConstraint(Sketcher.Constraint("Tangent", 20, 2, 21, 1))
sketch7.addConstraint(Sketcher.Constraint("Tangent", 21, 2, 22, 1))
sketch7.addConstraint(Sketcher.Constraint("Tangent", 22, 2, 23, 1))
sketch7.addConstraint(Sketcher.Constraint("Tangent", 23, 2, 16, 1))
sketch7.addConstraint(Sketcher.Constraint("Tangent", 24, 2, 25, 1))
sketch7.addConstraint(Sketcher.Constraint("Tangent", 25, 2, 26, 1))
sketch7.addConstraint(Sketcher.Constraint("Tangent", 26, 2, 27, 1))
sketch7.addConstraint(Sketcher.Constraint("Tangent", 27, 2, 28, 1))
sketch7.addConstraint(Sketcher.Constraint("Tangent", 28, 2, 29, 1))
sketch7.addConstraint(Sketcher.Constraint("Tangent", 29, 2, 30, 1))
sketch7.addConstraint(Sketcher.Constraint("Tangent", 30, 2, 31, 1))
sketch7.addConstraint(Sketcher.Constraint("Tangent", 31, 2, 24, 1))
sketch7.addConstraint(Sketcher.Constraint("Tangent", 32, 2, 33, 1))
sketch7.addConstraint(Sketcher.Constraint("Tangent", 33, 2, 34, 1))
sketch7.addConstraint(Sketcher.Constraint("Tangent", 34, 2, 35, 1))
sketch7.addConstraint(Sketcher.Constraint("Tangent", 35, 2, 36, 1))
sketch7.addConstraint(Sketcher.Constraint("Tangent", 36, 2, 37, 1))
sketch7.addConstraint(Sketcher.Constraint("Tangent", 37, 2, 38, 1))
sketch7.addConstraint(Sketcher.Constraint("Tangent", 38, 2, 39, 1))
sketch7.addConstraint(Sketcher.Constraint("Tangent", 39, 2, 32, 1))
sketch7.addConstraint(Sketcher.Constraint("Tangent", 40, 2, 41, 1))
sketch7.addConstraint(Sketcher.Constraint("Tangent", 41, 2, 42, 1))
sketch7.addConstraint(Sketcher.Constraint("Tangent", 42, 2, 43, 1))
sketch7.addConstraint(Sketcher.Constraint("Tangent", 43, 2, 44, 1))
sketch7.addConstraint(Sketcher.Constraint("Tangent", 44, 2, 45, 1))
sketch7.addConstraint(Sketcher.Constraint("Tangent", 45, 2, 46, 1))
sketch7.addConstraint(Sketcher.Constraint("Tangent", 46, 2, 47, 1))
sketch7.addConstraint(Sketcher.Constraint("Tangent", 47, 2, 40, 1))
sketch7.addConstraint(Sketcher.Constraint("Tangent", 48, 2, 49, 1))
sketch7.addConstraint(Sketcher.Constraint("Tangent", 49, 2, 50, 1))
sketch7.addConstraint(Sketcher.Constraint("Tangent", 50, 2, 51, 1))
sketch7.addConstraint(Sketcher.Constraint("Tangent", 51, 2, 52, 1))
sketch7.addConstraint(Sketcher.Constraint("Tangent", 52, 2, 53, 1))
sketch7.addConstraint(Sketcher.Constraint("Tangent", 53, 2, 54, 1))
sketch7.addConstraint(Sketcher.Constraint("Tangent", 54, 2, 55, 1))
sketch7.addConstraint(Sketcher.Constraint("Tangent", 55, 2, 48, 1))
sketch7.addConstraint(Sketcher.Constraint("Tangent", 56, 2, 57, 1))
sketch7.addConstraint(Sketcher.Constraint("Tangent", 57, 2, 58, 1))
sketch7.addConstraint(Sketcher.Constraint("Tangent", 58, 2, 59, 1))
sketch7.addConstraint(Sketcher.Constraint("Tangent", 59, 2, 60, 1))
sketch7.addConstraint(Sketcher.Constraint("Tangent", 60, 2, 61, 1))
sketch7.addConstraint(Sketcher.Constraint("Tangent", 61, 2, 62, 1))
sketch7.addConstraint(Sketcher.Constraint("Tangent", 62, 2, 63, 1))
sketch7.addConstraint(Sketcher.Constraint("Tangent", 63, 2, 56, 1))
sketch7.addConstraint(Sketcher.Constraint("Vertical", 0))
sketch7.addConstraint(Sketcher.Constraint("Horizontal", 2))
sketch7.addConstraint(Sketcher.Constraint("Vertical", 4))
sketch7.addConstraint(Sketcher.Constraint("Horizontal", 6))
sketch7.addConstraint(Sketcher.Constraint("Vertical", 8))
sketch7.addConstraint(Sketcher.Constraint("Horizontal", 10))
sketch7.addConstraint(Sketcher.Constraint("Vertical", 12))
sketch7.addConstraint(Sketcher.Constraint("Horizontal", 14))
sketch7.addConstraint(Sketcher.Constraint("Vertical", 16))
sketch7.addConstraint(Sketcher.Constraint("Horizontal", 18))
sketch7.addConstraint(Sketcher.Constraint("Vertical", 20))
sketch7.addConstraint(Sketcher.Constraint("Horizontal", 22))
sketch7.addConstraint(Sketcher.Constraint("Vertical", 24))
sketch7.addConstraint(Sketcher.Constraint("Horizontal", 26))
sketch7.addConstraint(Sketcher.Constraint("Vertical", 28))
sketch7.addConstraint(Sketcher.Constraint("Horizontal", 30))
sketch7.addConstraint(Sketcher.Constraint("Vertical", 32))
sketch7.addConstraint(Sketcher.Constraint("Horizontal", 34))
sketch7.addConstraint(Sketcher.Constraint("Vertical", 36))
sketch7.addConstraint(Sketcher.Constraint("Horizontal", 38))
sketch7.addConstraint(Sketcher.Constraint("Vertical", 40))
sketch7.addConstraint(Sketcher.Constraint("Horizontal", 42))
sketch7.addConstraint(Sketcher.Constraint("Vertical", 44))
sketch7.addConstraint(Sketcher.Constraint("Horizontal", 46))
sketch7.addConstraint(Sketcher.Constraint("Vertical", 48))
sketch7.addConstraint(Sketcher.Constraint("Horizontal", 50))
sketch7.addConstraint(Sketcher.Constraint("Vertical", 52))
sketch7.addConstraint(Sketcher.Constraint("Horizontal", 54))
sketch7.addConstraint(Sketcher.Constraint("Vertical", 56))
sketch7.addConstraint(Sketcher.Constraint("Horizontal", 58))
sketch7.addConstraint(Sketcher.Constraint("Vertical", 60))
sketch7.addConstraint(Sketcher.Constraint("Horizontal", 62))
sketch7.addConstraint(Sketcher.Constraint("Equal", 1, 3))
sketch7.addConstraint(Sketcher.Constraint("Equal", 3, 5))
sketch7.addConstraint(Sketcher.Constraint("Equal", 5, 7))
sketch7.addConstraint(Sketcher.Constraint("Equal", 7, 9))
sketch7.addConstraint(Sketcher.Constraint("Equal", 9, 11))
sketch7.addConstraint(Sketcher.Constraint("Equal", 11, 13))
sketch7.addConstraint(Sketcher.Constraint("Equal", 13, 15))
sketch7.addConstraint(Sketcher.Constraint("Equal", 15, 17))
sketch7.addConstraint(Sketcher.Constraint("Equal", 17, 19))
sketch7.addConstraint(Sketcher.Constraint("Equal", 19, 21))
sketch7.addConstraint(Sketcher.Constraint("Equal", 21, 23))
sketch7.addConstraint(Sketcher.Constraint("Equal", 23, 25))
sketch7.addConstraint(Sketcher.Constraint("Equal", 25, 27))
sketch7.addConstraint(Sketcher.Constraint("Equal", 27, 29))
sketch7.addConstraint(Sketcher.Constraint("Equal", 29, 31))
sketch7.addConstraint(Sketcher.Constraint("Equal", 31, 33))
sketch7.addConstraint(Sketcher.Constraint("Equal", 33, 35))
sketch7.addConstraint(Sketcher.Constraint("Equal", 35, 37))
sketch7.addConstraint(Sketcher.Constraint("Equal", 37, 39))
sketch7.addConstraint(Sketcher.Constraint("Equal", 39, 41))
sketch7.addConstraint(Sketcher.Constraint("Equal", 41, 43))
sketch7.addConstraint(Sketcher.Constraint("Equal", 43, 45))
sketch7.addConstraint(Sketcher.Constraint("Equal", 45, 47))
sketch7.addConstraint(Sketcher.Constraint("Equal", 47, 49))
sketch7.addConstraint(Sketcher.Constraint("Equal", 49, 51))
sketch7.addConstraint(Sketcher.Constraint("Equal", 51, 53))
sketch7.addConstraint(Sketcher.Constraint("Equal", 53, 55))
sketch7.addConstraint(Sketcher.Constraint("Equal", 55, 57))
sketch7.addConstraint(Sketcher.Constraint("Equal", 57, 59))
sketch7.addConstraint(Sketcher.Constraint("Equal", 59, 61))
sketch7.addConstraint(Sketcher.Constraint("Equal", 61, 63))
sketch7.addConstraint(Sketcher.Constraint("Symmetric", 11, 3, 17, 3, -2))
sketch7.addConstraint(Sketcher.Constraint("Symmetric", 15, 3, 21, 3, -2))
sketch7.addConstraint(Sketcher.Constraint("Symmetric", 3, 3, 25, 3, -2))
sketch7.addConstraint(Sketcher.Constraint("Symmetric", 7, 3, 29, 3, -2))
sketch7.addConstraint(Sketcher.Constraint("Symmetric", 43, 3, 49, 3, -2))
sketch7.addConstraint(Sketcher.Constraint("Symmetric", 47, 3, 53, 3, -2))
sketch7.addConstraint(Sketcher.Constraint("Symmetric", 35, 3, 57, 3, -2))
sketch7.addConstraint(Sketcher.Constraint("Symmetric", 39, 3, 61, 3, -2))
sketch7.addConstraint(Sketcher.Constraint("Horizontal", 3, 3, 9, 3))
sketch7.addConstraint(Sketcher.Constraint("Horizontal", 7, 3, 13, 3))
sketch7.addConstraint(Sketcher.Constraint("Horizontal", 35, 3, 41, 3))
sketch7.addConstraint(Sketcher.Constraint("Horizontal", 39, 3, 45, 3))
sketch7.addConstraint(Sketcher.Constraint("Vertical", 31, 3, 33, 3))
sketch7.addConstraint(Sketcher.Constraint("Vertical", 29, 3, 35, 3))
sketch7.addConstraint(Sketcher.Constraint("Vertical", 23, 3, 41, 3))
sketch7.addConstraint(Sketcher.Constraint("Vertical", 21, 3, 43, 3))
sketch7.addConstraint(Sketcher.Constraint("Equal", 6, 10))
sketch7.addConstraint(Sketcher.Constraint("Equal", 62, 0))
sketch7.addConstraint(Sketcher.Constraint("Equal", 28, 32))
sketch7.addConstraint(Sketcher.Constraint("Radius", 1, 2.100001))
sketch7.addConstraint(Sketcher.Constraint("DistanceX", 2, 1, 2, 2, 12.8))
sketch7.addConstraint(Sketcher.Constraint("DistanceX", 1, 3, -1, 1, 46.404999))
sketch7.addConstraint(Sketcher.Constraint("DistanceY", 1, 3, -1, 1, 19.734999))
sketch7.addConstraint(Sketcher.Constraint("DistanceX", 9, 3, -1, 1, 19.734999))
sketch7.addConstraint(Sketcher.Constraint("DistanceY", 33, 3, -1, 1, 46.404999))
pocket5 = body.newObject("PartDesign::Pocket", "Pocket004")
pocket5.Profile = sketch7
pocket5.Type = "ThroughAll"

doc.recompute()
